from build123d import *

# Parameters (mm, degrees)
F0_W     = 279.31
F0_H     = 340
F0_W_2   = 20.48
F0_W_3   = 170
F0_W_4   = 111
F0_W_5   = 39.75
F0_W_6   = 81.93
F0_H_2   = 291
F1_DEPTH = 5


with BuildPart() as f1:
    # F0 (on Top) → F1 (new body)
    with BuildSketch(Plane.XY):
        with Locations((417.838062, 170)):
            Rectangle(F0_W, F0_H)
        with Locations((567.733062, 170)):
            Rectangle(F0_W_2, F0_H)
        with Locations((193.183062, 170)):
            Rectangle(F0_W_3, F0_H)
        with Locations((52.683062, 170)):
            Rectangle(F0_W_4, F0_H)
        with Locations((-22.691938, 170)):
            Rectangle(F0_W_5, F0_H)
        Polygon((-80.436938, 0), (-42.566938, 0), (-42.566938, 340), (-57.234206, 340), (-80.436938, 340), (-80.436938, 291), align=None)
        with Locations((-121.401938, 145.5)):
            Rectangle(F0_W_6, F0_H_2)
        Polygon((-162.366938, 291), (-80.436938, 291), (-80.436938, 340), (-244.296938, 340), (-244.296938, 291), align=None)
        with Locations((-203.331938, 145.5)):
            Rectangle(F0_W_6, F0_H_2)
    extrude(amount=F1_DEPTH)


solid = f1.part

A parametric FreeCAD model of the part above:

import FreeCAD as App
import Part
import Sketcher
from FreeCAD import Vector
Q = App.Units.Quantity

doc = App.newDocument("Part")
body = doc.addObject("PartDesign::Body", "Body")

sketch1 = doc.addObject("Sketcher::SketchObject", "Sketch")
body.addObject(sketch1)
sketch1.AttachmentSupport = (doc.XY_Plane, [""])
sketch1.MapMode = "FlatFace"
sketch1.addGeometry([
    Part.LineSegment(Vector(578, 0, 0), Vector(578, 340, 0)),
    Part.LineSegment(Vector(578, 340, 0), Vector(-244, 340, 0)),
    Part.LineSegment(Vector(-244, 340, 0), Vector(-244, 0, 0)),
    Part.LineSegment(Vector(-244, 0, 0), Vector(578, 0, 0)),
], False)
sketch1.addConstraint([
    Sketcher.Constraint("Coincident", 0, 2, 1, 1),
    Sketcher.Constraint("Coincident", 1, 2, 2, 1),
    Sketcher.Constraint("Coincident", 2, 2, 3, 1),
    Sketcher.Constraint("Coincident", 3, 2, 0, 1),
    Sketcher.Constraint("Vertical", 0),
    Sketcher.Constraint("Horizontal", 1),
    Sketcher.Constraint("Vertical", 2),
    Sketcher.Constraint("Horizontal", 3),
    Sketcher.Constraint("PointOnObject", 2, 2, -1),
    Sketcher.Constraint("DistanceY", 0, 1, 0, 2, Q("340 mm")),
    Sketcher.Constraint("DistanceX", 1, 2, 1, 1, Q("822.27 mm")),
    Sketcher.Constraint("DistanceX", -1, 1, 0, 2, Q("577.973062 mm")),
])
pad1 = doc.addObject("PartDesign::Pad", "Pad")
body.addObject(pad1)
pad1.Profile = sketch1
pad1.Length = 5

doc.recompute()
